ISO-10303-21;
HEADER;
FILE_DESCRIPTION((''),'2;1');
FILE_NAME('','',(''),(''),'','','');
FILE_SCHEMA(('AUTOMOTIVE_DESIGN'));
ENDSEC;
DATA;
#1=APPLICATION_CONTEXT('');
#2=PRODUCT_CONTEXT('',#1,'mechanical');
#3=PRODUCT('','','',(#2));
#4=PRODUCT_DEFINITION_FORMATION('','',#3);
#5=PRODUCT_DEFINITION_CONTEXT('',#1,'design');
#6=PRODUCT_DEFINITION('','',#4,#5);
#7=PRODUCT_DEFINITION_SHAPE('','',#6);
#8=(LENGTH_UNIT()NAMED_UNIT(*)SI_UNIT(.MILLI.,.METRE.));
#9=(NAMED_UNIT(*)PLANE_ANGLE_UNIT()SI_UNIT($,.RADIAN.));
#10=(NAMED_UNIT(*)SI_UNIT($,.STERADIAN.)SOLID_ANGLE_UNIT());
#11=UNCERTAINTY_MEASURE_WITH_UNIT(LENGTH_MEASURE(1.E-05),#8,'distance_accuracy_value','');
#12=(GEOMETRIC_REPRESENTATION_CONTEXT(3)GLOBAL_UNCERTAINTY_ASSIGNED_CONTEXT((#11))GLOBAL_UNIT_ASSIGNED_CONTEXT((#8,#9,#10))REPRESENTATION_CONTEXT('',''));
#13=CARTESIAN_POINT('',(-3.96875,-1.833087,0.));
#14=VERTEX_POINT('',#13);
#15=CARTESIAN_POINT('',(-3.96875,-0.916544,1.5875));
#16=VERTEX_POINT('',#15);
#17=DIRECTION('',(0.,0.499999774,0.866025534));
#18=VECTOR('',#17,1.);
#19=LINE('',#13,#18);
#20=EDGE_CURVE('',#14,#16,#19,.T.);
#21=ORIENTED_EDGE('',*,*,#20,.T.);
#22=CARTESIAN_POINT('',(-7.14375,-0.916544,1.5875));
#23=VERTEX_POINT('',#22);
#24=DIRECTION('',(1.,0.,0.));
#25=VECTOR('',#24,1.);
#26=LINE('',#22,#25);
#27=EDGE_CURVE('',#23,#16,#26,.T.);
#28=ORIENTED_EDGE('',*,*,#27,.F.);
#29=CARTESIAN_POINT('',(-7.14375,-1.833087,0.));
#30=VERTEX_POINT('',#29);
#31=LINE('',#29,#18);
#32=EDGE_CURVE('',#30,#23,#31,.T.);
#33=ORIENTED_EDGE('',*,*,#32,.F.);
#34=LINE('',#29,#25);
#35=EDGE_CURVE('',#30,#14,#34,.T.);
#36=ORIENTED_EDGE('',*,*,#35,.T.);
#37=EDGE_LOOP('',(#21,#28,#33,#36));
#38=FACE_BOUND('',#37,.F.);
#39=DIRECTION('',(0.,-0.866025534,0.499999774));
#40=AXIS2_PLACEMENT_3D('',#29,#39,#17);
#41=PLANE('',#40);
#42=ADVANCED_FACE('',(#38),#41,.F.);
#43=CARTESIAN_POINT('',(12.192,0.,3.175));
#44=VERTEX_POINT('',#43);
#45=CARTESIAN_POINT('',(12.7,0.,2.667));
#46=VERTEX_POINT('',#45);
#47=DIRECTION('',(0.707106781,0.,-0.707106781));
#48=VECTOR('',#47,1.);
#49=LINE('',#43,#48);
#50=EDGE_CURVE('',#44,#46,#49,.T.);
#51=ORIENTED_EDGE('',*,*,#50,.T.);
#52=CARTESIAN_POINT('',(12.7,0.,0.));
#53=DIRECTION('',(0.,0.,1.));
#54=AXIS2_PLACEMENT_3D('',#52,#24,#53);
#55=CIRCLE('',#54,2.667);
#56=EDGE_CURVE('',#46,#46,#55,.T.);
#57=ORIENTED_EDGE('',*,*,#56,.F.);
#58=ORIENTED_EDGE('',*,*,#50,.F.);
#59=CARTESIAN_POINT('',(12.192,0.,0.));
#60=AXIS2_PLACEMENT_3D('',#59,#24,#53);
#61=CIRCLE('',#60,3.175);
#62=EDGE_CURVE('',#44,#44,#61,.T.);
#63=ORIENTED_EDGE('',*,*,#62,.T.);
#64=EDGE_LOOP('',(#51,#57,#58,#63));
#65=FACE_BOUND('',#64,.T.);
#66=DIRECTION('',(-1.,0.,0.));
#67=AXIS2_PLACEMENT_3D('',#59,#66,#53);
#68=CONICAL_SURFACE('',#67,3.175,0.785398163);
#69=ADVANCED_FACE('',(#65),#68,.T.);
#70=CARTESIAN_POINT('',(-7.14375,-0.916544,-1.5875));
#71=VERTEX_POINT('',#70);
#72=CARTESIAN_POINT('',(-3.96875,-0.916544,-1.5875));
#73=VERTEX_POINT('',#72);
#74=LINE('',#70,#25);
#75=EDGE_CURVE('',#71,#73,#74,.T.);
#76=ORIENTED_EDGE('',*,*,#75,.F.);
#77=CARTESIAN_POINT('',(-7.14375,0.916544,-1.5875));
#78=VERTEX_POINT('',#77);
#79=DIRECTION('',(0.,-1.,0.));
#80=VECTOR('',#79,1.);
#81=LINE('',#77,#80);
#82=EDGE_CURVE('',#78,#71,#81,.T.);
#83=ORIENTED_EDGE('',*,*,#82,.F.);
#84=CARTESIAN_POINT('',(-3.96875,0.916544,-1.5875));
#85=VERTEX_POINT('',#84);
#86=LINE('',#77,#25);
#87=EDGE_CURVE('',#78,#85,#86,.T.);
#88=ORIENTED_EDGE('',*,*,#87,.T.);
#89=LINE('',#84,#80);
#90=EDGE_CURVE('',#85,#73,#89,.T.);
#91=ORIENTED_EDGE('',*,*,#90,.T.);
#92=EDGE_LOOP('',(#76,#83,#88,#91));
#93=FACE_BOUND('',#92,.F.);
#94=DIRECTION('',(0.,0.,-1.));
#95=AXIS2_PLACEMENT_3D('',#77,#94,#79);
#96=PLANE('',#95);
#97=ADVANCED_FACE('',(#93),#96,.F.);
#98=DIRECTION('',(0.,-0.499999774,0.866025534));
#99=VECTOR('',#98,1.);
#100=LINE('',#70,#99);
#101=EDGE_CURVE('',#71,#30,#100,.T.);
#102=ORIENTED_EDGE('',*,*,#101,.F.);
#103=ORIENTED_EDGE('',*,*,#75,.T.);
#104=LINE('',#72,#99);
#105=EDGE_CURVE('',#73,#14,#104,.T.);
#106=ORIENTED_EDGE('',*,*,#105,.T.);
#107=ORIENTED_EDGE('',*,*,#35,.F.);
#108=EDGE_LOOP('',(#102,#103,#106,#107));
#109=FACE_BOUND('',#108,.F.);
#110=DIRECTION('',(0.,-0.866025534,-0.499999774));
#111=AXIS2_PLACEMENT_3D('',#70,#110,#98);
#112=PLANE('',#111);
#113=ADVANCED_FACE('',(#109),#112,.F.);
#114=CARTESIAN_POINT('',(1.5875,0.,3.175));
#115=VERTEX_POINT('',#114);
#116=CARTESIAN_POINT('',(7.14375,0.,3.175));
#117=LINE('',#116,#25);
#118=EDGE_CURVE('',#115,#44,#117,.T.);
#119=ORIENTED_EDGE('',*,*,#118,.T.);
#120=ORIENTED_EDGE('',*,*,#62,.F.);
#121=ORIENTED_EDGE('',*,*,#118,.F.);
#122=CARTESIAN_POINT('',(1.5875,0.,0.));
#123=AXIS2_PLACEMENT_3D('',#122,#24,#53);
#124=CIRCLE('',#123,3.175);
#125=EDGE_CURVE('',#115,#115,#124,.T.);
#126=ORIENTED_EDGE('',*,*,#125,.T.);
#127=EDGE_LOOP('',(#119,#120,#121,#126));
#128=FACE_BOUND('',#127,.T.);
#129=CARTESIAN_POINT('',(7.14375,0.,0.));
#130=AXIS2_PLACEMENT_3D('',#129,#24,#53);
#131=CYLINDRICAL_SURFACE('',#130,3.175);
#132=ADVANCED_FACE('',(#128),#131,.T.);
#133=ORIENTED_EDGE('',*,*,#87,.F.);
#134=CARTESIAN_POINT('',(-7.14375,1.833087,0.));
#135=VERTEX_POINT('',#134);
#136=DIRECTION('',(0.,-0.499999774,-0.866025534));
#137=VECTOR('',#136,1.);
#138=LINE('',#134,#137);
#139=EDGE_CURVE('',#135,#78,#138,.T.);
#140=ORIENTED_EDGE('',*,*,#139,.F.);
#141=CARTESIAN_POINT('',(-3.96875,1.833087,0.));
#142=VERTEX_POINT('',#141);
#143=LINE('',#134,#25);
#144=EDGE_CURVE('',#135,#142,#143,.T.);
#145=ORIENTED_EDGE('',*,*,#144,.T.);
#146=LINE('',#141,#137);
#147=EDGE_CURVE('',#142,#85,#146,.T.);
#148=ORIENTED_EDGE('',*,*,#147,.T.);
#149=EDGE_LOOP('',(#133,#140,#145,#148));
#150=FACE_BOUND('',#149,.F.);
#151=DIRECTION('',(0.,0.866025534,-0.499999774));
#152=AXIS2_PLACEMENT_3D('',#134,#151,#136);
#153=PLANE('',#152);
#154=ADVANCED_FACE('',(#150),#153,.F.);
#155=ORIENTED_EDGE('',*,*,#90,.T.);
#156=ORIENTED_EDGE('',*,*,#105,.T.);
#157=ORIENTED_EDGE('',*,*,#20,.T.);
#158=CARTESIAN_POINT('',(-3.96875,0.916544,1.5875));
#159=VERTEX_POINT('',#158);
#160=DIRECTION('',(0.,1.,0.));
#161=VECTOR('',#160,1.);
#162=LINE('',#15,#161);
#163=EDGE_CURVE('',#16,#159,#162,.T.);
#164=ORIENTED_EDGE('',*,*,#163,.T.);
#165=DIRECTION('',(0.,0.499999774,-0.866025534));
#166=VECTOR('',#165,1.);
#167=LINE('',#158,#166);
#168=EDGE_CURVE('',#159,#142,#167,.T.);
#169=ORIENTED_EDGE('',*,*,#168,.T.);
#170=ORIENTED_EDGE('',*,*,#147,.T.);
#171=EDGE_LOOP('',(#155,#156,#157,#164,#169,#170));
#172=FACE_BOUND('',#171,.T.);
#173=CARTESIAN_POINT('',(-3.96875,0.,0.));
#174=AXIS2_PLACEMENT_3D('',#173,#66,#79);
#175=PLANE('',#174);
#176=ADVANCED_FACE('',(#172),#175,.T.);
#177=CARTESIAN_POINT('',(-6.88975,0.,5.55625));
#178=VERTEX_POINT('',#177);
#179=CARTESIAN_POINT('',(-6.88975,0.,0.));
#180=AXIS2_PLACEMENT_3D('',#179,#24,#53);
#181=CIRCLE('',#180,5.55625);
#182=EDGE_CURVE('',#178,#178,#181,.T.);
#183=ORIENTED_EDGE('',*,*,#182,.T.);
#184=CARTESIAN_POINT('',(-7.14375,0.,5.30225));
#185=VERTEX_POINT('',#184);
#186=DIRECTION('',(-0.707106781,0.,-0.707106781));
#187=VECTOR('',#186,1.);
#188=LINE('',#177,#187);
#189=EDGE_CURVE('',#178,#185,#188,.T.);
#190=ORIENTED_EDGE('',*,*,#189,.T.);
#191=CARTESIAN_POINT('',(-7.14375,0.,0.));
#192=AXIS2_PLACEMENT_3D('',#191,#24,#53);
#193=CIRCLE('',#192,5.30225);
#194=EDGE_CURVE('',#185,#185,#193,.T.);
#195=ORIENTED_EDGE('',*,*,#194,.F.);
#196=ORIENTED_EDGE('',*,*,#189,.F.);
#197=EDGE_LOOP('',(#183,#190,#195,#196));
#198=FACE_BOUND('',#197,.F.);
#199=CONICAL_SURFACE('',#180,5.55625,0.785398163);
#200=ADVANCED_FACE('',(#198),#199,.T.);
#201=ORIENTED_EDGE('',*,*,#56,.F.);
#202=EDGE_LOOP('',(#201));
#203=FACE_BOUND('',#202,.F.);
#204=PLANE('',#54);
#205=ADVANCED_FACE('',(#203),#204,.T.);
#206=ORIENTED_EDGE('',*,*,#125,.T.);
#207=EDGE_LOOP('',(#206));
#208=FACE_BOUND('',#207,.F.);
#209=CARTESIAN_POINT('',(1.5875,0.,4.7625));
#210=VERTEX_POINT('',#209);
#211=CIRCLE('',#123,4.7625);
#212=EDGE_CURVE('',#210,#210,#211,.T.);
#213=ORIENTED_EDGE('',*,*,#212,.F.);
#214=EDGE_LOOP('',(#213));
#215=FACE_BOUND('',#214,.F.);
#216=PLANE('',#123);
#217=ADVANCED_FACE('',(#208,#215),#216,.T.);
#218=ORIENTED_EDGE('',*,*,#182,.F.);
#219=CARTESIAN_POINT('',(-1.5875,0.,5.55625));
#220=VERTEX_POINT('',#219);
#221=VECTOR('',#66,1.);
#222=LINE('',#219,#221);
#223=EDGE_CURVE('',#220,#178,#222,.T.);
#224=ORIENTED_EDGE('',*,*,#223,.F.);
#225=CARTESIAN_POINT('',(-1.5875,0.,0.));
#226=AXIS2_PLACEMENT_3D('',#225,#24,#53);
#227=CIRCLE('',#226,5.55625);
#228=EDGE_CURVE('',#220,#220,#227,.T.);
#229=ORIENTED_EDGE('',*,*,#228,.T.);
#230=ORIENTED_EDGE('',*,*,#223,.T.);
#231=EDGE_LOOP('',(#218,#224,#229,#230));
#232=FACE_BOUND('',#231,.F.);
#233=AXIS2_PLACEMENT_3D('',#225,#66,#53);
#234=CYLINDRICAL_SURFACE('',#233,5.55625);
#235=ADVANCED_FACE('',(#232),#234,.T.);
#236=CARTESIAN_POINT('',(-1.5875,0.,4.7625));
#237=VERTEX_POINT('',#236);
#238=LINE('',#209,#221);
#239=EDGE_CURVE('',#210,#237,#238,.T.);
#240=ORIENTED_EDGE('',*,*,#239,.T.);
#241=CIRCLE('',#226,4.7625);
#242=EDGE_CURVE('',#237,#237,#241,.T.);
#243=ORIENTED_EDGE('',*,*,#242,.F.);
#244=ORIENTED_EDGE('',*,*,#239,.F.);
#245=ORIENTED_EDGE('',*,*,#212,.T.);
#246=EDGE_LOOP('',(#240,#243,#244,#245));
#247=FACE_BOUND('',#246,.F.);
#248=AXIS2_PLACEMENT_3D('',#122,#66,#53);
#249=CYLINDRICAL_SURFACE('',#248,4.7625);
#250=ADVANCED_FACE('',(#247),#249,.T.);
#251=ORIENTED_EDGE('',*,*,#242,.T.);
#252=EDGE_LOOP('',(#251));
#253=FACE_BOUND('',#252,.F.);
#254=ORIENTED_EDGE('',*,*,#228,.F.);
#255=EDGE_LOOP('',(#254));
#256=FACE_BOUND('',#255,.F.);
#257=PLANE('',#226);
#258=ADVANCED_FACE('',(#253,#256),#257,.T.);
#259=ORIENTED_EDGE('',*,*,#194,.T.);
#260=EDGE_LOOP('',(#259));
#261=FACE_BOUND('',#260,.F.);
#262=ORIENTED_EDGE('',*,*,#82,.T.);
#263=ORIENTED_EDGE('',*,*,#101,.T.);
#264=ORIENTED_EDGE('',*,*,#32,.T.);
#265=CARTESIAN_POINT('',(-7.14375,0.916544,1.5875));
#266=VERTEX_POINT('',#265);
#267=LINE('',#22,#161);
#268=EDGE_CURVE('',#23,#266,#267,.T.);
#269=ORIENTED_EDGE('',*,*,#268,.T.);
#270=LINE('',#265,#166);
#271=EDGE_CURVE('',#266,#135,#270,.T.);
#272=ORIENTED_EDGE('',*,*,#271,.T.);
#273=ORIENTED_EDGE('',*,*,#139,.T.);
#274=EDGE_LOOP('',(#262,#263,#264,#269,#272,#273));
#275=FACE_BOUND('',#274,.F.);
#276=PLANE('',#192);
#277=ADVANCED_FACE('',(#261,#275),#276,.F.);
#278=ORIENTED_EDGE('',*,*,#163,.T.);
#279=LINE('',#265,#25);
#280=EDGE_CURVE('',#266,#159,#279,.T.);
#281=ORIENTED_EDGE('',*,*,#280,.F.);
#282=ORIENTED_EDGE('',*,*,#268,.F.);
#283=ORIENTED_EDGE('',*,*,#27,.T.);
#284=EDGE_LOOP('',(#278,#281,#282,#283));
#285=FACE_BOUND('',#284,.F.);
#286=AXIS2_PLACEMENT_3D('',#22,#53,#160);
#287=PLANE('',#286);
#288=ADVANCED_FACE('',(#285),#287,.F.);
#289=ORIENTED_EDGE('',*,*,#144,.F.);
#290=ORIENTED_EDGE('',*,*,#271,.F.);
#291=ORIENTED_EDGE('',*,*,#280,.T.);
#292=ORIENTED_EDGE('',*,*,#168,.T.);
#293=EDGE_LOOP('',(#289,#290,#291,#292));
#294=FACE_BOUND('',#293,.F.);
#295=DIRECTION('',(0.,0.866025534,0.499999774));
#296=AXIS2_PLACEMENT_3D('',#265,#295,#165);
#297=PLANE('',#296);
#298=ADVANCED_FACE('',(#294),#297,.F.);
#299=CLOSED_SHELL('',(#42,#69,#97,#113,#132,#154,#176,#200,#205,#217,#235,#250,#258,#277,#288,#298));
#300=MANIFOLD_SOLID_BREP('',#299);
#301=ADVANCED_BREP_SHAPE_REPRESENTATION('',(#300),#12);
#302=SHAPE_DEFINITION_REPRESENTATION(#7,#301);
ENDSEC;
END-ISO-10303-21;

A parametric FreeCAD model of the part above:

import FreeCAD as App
import Part
import Sketcher
from FreeCAD import Vector
Q = App.Units.Quantity


def edges_at(feature, points):
    """Names of the edges that pass closest to the given points."""
    edges = feature.Shape.Edges
    near = lambda p: min(range(len(edges)), key=lambda i: edges[i].distToShape(Part.Vertex(*p))[0])
    return sorted({f"Edge{near(p) + 1}" for p in points})


def add_polygon(sketch, points):
    """Adds a closed chain of lines whose ends are joined by coincident constraints."""
    first, n = sketch.GeometryCount, len(points)
    for a, b in zip(points, points[1:] + points[:1]):
        sketch.addGeometry(Part.LineSegment(App.Vector(*a, 0), App.Vector(*b, 0)), False)
    for i in range(n):
        sketch.addConstraint(Sketcher.Constraint("Coincident", first + i, 2, first + (i + 1) % n, 1))

doc = App.newDocument("Part")
body = doc.addObject("PartDesign::Body", "Body")

# Sketch on XZ plane
sketch1 = body.newObject("Sketcher::SketchObject", "Sketch")
sketch1.AttachmentSupport = (doc.getObject("XZ_Plane"), [""])
sketch1.MapMode = "FlatFace"
add_polygon(sketch1, [(-2, 0), (-2, 6), (-7, 6), (-7, 0)])  # lines 0-3
sketch1.addConstraint([
    Sketcher.Constraint("Vertical", 0),
    Sketcher.Constraint("Horizontal", 1),
    Sketcher.Constraint("Vertical", 2),
    Sketcher.Constraint("Horizontal", 3),
    Sketcher.Constraint("PointOnObject", 2, 2, -1),
    Sketcher.Constraint("Equal", 3, 0),
    Sketcher.Constraint("DistanceX", 1, 2, 1, 1, Q("0.21875 in")),
    Sketcher.Constraint("DistanceX", 0, 2, -1, 1, Q("0.0625 in")),
])
revolution = body.newObject("PartDesign::Revolution", "Revolution")
revolution.Profile = sketch1
revolution.ReferenceAxis = (sketch1, ["H_Axis"])
revolution.Angle = 360

# Sketch on XZ plane
sketch2 = body.newObject("Sketcher::SketchObject", "Sketch001")
sketch2.AttachmentSupport = (doc.getObject("XZ_Plane"), [""])
sketch2.MapMode = "FlatFace"
add_polygon(sketch2, [(1.6, 4.8), (-1.6, 4.8), (-1.6, 0), (1.6, 0)])  # lines 0-3
sketch2.addConstraint([
    Sketcher.Constraint("Horizontal", 0),
    Sketcher.Constraint("Vertical", 1),
    Sketcher.Constraint("Horizontal", 2),
    Sketcher.Constraint("Vertical", 3),
    Sketcher.Constraint("Symmetric", 1, 2, 2, 2, -1, 1),
    Sketcher.Constraint("DistanceX", 0, 2, 0, 1, Q("0.125 in")),
    Sketcher.Constraint("DistanceY", 1, 2, 1, 1, Q("0.1875 in")),
])
revolution2 = body.newObject("PartDesign::Revolution", "Revolution001")
revolution2.Profile = sketch2
revolution2.ReferenceAxis = (sketch2, ["H_Axis"])
revolution2.Angle = 360

# Sketch on XZ plane
sketch3 = body.newObject("Sketcher::SketchObject", "Sketch002")
sketch3.AttachmentSupport = (doc.getObject("XZ_Plane"), [""])
sketch3.MapMode = "FlatFace"
add_polygon(sketch3, [(1.6, 3.2), (1.6, 0), (12.7, 0), (12.7, 3.2)])  # lines 0-3
sketch3.addConstraint([
    Sketcher.Constraint("Vertical", 0),
    Sketcher.Constraint("Horizontal", 1),
    Sketcher.Constraint("Vertical", 2),
    Sketcher.Constraint("Horizontal", 3),
    Sketcher.Constraint("PointOnObject", 0, 2, -1),
    Sketcher.Constraint("DistanceX", -1, 1, 1, 2, Q("0.5 in")),
    Sketcher.Constraint("DistanceX", 1, 1, 1, 2, Q("0.4375 in")),
    Sketcher.Constraint("DistanceY", 0, 2, 0, 1, Q("0.125 in")),
])
revolution3 = body.newObject("PartDesign::Revolution", "Revolution002")
revolution3.Profile = sketch3
revolution3.ReferenceAxis = (sketch3, ["H_Axis"])
revolution3.Angle = 360

# Sketch on YZ plane
sketch4 = body.newObject("Sketcher::SketchObject", "Sketch003")
sketch4.AttachmentSupport = (doc.getObject("YZ_Plane"), [""])
sketch4.MapMode = "FlatFace"
sketch4.AttachmentOffset = App.Placement(Vector(0, 0, -0.28125 * 25.4), App.Rotation())
add_polygon(sketch4, [(-1.8, 0), (-0.9, 1.6), (0.9, 1.6), (1.8, 0), (0.9, -1.6), (-0.9, -1.6)])  # lines 0-5
sketch4.addConstraint([
    Sketcher.Constraint("Horizontal", 1),
    Sketcher.Constraint("Horizontal", 4),
    Sketcher.Constraint("Symmetric", 0, 2, 3, 2, -1, 1),
    Sketcher.Constraint("Symmetric", 2, 2, 5, 2, -1, 1),
    Sketcher.Constraint("PointOnObject", 2, 2, -1),
    Sketcher.Constraint("Parallel", 2, 5),
    Sketcher.Constraint("Vertical", 1, 2, 3, 2),
    Sketcher.Constraint("Angle", 0, Q("60.000015 deg")),
    Sketcher.Constraint("DistanceY", -1, 1, 0, 2, Q("0.0625 in")),
    Sketcher.Constraint("DistanceX", 1, 1, 1, 2, 1.833088),
])
pocket1 = body.newObject("PartDesign::Pocket", "Pocket")
pocket1.Profile = sketch4
pocket1.Length = Q("0.125 in")
pocket1.Reversed = True
doc.recompute()

chamfer = body.newObject("PartDesign::Chamfer", "Chamfer")
chamfer.Base = (pocket1, edges_at(pocket1, [(-7.144, 0, -5.556)]))
chamfer.Size = Q("0.01 in")
doc.recompute()

chamfer2 = body.newObject("PartDesign::Chamfer", "Chamfer001")
chamfer2.Base = (chamfer, edges_at(chamfer, [(12.7, 0, -3.175)]))
chamfer2.Size = Q("0.02 in")

doc.recompute()
